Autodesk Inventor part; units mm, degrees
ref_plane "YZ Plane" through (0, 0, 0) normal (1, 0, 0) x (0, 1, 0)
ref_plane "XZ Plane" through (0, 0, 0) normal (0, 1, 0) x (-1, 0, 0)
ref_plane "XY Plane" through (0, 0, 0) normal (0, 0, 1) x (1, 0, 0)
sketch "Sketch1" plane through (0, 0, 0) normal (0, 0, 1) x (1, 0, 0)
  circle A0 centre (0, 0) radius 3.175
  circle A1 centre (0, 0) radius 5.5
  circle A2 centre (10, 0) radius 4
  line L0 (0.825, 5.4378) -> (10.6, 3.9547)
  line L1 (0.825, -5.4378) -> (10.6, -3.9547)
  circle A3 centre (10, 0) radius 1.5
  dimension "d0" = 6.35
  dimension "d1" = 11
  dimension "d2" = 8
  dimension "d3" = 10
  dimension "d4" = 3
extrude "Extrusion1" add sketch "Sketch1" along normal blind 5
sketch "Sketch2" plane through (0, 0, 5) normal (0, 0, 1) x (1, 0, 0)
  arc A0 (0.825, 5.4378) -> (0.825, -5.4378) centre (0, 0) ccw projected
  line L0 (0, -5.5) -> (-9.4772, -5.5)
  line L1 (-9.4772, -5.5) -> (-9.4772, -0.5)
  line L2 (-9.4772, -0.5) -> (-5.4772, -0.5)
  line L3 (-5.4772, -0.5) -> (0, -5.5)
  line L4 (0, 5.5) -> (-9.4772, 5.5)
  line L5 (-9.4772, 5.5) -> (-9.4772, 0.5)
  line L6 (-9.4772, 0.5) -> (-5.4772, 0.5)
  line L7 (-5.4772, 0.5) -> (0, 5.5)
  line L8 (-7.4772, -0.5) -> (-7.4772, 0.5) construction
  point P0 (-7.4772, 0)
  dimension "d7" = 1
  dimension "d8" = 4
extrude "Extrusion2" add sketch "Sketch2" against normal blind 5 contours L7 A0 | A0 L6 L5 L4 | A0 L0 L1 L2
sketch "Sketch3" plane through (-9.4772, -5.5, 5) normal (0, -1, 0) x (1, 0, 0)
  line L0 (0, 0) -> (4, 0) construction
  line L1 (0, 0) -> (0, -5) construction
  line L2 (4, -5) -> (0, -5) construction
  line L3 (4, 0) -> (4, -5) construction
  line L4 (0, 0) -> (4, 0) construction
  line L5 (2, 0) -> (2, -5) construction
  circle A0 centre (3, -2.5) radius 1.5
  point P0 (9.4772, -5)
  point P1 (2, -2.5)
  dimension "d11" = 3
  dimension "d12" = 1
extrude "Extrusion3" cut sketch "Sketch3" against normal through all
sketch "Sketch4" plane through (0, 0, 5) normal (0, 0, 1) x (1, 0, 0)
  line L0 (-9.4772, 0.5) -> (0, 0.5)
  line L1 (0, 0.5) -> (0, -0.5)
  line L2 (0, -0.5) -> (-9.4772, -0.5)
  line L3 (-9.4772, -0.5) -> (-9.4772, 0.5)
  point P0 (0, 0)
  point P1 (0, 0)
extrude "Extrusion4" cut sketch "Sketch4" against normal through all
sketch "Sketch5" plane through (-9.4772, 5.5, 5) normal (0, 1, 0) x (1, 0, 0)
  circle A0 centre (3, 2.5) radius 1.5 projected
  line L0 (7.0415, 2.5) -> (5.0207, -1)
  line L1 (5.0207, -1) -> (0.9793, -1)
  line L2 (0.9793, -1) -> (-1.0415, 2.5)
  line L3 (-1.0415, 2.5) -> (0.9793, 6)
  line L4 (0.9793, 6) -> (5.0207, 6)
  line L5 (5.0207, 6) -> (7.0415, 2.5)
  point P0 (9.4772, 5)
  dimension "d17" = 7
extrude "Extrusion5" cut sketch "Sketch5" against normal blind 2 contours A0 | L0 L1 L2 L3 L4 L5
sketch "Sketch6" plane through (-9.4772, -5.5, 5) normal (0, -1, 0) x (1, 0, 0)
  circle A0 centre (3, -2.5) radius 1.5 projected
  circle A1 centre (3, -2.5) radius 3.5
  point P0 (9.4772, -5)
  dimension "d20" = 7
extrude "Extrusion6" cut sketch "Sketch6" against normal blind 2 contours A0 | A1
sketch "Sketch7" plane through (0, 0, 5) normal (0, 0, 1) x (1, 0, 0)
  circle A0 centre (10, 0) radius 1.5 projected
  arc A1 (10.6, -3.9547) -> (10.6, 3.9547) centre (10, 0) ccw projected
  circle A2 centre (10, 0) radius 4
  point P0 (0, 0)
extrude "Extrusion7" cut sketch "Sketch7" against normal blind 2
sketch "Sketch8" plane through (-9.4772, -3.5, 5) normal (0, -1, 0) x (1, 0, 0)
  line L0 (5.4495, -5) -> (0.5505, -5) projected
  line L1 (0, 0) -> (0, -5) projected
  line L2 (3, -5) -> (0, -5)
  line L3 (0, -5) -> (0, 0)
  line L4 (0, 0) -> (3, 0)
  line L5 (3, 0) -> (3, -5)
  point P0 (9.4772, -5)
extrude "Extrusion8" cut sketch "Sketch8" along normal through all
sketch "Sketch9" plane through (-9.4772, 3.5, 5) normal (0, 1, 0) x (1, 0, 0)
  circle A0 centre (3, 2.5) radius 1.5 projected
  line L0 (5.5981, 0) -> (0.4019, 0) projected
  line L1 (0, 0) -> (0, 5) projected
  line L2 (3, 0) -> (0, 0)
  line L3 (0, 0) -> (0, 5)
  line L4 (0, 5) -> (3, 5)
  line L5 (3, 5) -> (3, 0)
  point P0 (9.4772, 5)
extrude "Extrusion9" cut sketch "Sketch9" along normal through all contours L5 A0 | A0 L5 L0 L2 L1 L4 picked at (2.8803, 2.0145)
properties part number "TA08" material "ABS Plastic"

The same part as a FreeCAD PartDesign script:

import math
import FreeCAD as App
import Part
import Sketcher
from FreeCAD import Vector
Q = App.Units.Quantity

doc = App.newDocument("Part")
body = doc.addObject("PartDesign::Body", "Body")

# Sketch on XY plane
sketch1 = body.newObject("Sketcher::SketchObject", "Sketch")
sketch1.AttachmentSupport = (doc.getObject("XY_Plane"), [""])
sketch1.MapMode = "FlatFace"
sketch1.addGeometry(Part.ArcOfCircle(Part.Circle(Vector(0, 0, 0), Vector(0, 0, 1), 5.5), math.radians(81), math.radians(279)), False)
sketch1.addGeometry(Part.LineSegment(Vector(0.8, -5.4, 0), Vector(10.6, -4, 0)), False)
sketch1.addGeometry(Part.ArcOfCircle(Part.Circle(Vector(10, 0, 0), Vector(0, 0, 1), 4), math.radians(-81), math.radians(81)), False)
sketch1.addGeometry(Part.LineSegment(Vector(10.6, 4, 0), Vector(0.8, 5.4, 0)), False)
sketch1.addGeometry(Part.Circle(Vector(0, 0, 0), Vector(0, 0, 1), 3.2), False)
sketch1.addGeometry(Part.Circle(Vector(10, 0, 0), Vector(0, 0, 1), 1.5), False)
sketch1.addConstraint(Sketcher.Constraint("Tangent", 0, 2, 1, 1))
sketch1.addConstraint(Sketcher.Constraint("Tangent", 1, 2, 2, 1))
sketch1.addConstraint(Sketcher.Constraint("Tangent", 2, 2, 3, 1))
sketch1.addConstraint(Sketcher.Constraint("Tangent", 3, 2, 0, 1))
sketch1.addConstraint(Sketcher.Constraint("Coincident", 0, 3, -1, 1))
sketch1.addConstraint(Sketcher.Constraint("Coincident", 4, 3, -1, 1))
sketch1.addConstraint(Sketcher.Constraint("Coincident", 5, 3, 2, 3))
sketch1.addConstraint(Sketcher.Constraint("PointOnObject", 2, 3, -1))
sketch1.addConstraint(Sketcher.Constraint("Diameter", 5, 3.0))
sketch1.addConstraint(Sketcher.Constraint("Radius", 2, 4.0))
sketch1.addConstraint(Sketcher.Constraint("Radius", 0, 5.5))
sketch1.addConstraint(Sketcher.Constraint("Diameter", 4, 6.35))
sketch1.addConstraint(Sketcher.Constraint("DistanceX", -1, 1, 2, 3, 10.0))
pad1 = body.newObject("PartDesign::Pad", "Pad")
pad1.Profile = sketch1
pad1.Length = 5

# Sketch on XY plane
sketch2 = body.newObject("Sketcher::SketchObject", "Sketch001")
sketch2.AttachmentSupport = (doc.getObject("XY_Plane"), [""])
sketch2.MapMode = "FlatFace"
sketch2.AttachmentOffset = App.Placement(Vector(0, 0, 5), App.Rotation())
sketch2.addGeometry(Part.LineSegment(Vector(-5.5, 0.5, 0), Vector(0, 5.5, 0)), False)
sketch2.addGeometry(Part.LineSegment(Vector(0, 5.5, 0), Vector(-9.5, 5.5, 0)), False)
sketch2.addGeometry(Part.LineSegment(Vector(-9.5, 5.5, 0), Vector(-9.5, 0.5, 0)), False)
sketch2.addGeometry(Part.LineSegment(Vector(-9.5, 0.5, 0), Vector(-5.5, 0.5, 0)), False)
sketch2.addGeometry(Part.ArcOfCircle(Part.Circle(Vector(0, 0, 0), Vector(0, 0, 1), 5.5), math.radians(-175), math.radians(-90)), False)
sketch2.addGeometry(Part.LineSegment(Vector(-5.5, -0.5, 0), Vector(-9.5, -0.5, 0)), False)
sketch2.addGeometry(Part.LineSegment(Vector(-9.5, -0.5, 0), Vector(-9.5, -5.5, 0)), False)
sketch2.addGeometry(Part.LineSegment(Vector(-9.5, -5.5, 0), Vector(0, -5.5, 0)), False)
sketch2.addConstraint(Sketcher.Constraint("Coincident", 0, 2, 1, 1))
sketch2.addConstraint(Sketcher.Constraint("Coincident", 1, 2, 2, 1))
sketch2.addConstraint(Sketcher.Constraint("Coincident", 2, 2, 3, 1))
sketch2.addConstraint(Sketcher.Constraint("Coincident", 3, 2, 0, 1))
sketch2.addConstraint(Sketcher.Constraint("Coincident", 4, 1, 5, 1))
sketch2.addConstraint(Sketcher.Constraint("Coincident", 5, 2, 6, 1))
sketch2.addConstraint(Sketcher.Constraint("Coincident", 6, 2, 7, 1))
sketch2.addConstraint(Sketcher.Constraint("Tangent", 7, 2, 4, 2))
sketch2.addConstraint(Sketcher.Constraint("Horizontal", 1))
sketch2.addConstraint(Sketcher.Constraint("Vertical", 2))
sketch2.addConstraint(Sketcher.Constraint("Horizontal", 3))
sketch2.addConstraint(Sketcher.Constraint("Horizontal", 5))
sketch2.addConstraint(Sketcher.Constraint("Vertical", 6))
sketch2.addConstraint(Sketcher.Constraint("Horizontal", 7))
sketch2.addConstraint(Sketcher.Constraint("Coincident", 4, 3, -1, 1))
sketch2.addConstraint(Sketcher.Constraint("Symmetric", 0, 2, 7, 2, -1, 1))
sketch2.addConstraint(Sketcher.Constraint("Symmetric", 3, 2, 4, 1, -1))
sketch2.addConstraint(Sketcher.Constraint("Vertical", 2, 2, 5, 2))
sketch2.addConstraint(Sketcher.Constraint("DistanceX", 3, 1, 3, 2, 4.0))
sketch2.addConstraint(Sketcher.Constraint("DistanceY", 4, 1, 3, 2, 1.0))
sketch2.addConstraint(Sketcher.Constraint("Radius", 4, 5.5))
pad2 = body.newObject("PartDesign::Pad", "Pad001")
pad2.Profile = sketch2
pad2.Length = 5
pad2.Reversed = True

# Sketch on XZ plane
sketch3 = body.newObject("Sketcher::SketchObject", "Sketch002")
sketch3.AttachmentSupport = (doc.getObject("XZ_Plane"), [""])
sketch3.MapMode = "FlatFace"
sketch3.AttachmentOffset = App.Placement(Vector(0, 0, 5.5), App.Rotation())
sketch3.addGeometry(Part.Circle(Vector(-6.5, 2.5, 0), Vector(0, 0, 1), 1.5), False)
sketch3.addConstraint(Sketcher.Constraint("Diameter", 0, 3.0))
sketch3.addConstraint(Sketcher.Constraint("DistanceY", -1, 1, 0, 3, 2.5))
sketch3.addConstraint(Sketcher.Constraint("DistanceX", 0, 3, -1, 1, 6.4772))
pocket1 = body.newObject("PartDesign::Pocket", "Pocket")
pocket1.Profile = sketch3
pocket1.Type = "ThroughAll"

# Sketch on XY plane
sketch4 = body.newObject("Sketcher::SketchObject", "Sketch003")
sketch4.AttachmentSupport = (doc.getObject("XY_Plane"), [""])
sketch4.MapMode = "FlatFace"
sketch4.AttachmentOffset = App.Placement(Vector(0, 0, 5), App.Rotation())
sketch4.addGeometry(Part.LineSegment(Vector(0, 0.5, 0), Vector(-9.5, 0.5, 0)), False)
sketch4.addGeometry(Part.LineSegment(Vector(-9.5, 0.5, 0), Vector(-9.5, -0.5, 0)), False)
sketch4.addGeometry(Part.LineSegment(Vector(-9.5, -0.5, 0), Vector(0, -0.5, 0)), False)
sketch4.addGeometry(Part.LineSegment(Vector(0, -0.5, 0), Vector(0, 0.5, 0)), False)
sketch4.addConstraint(Sketcher.Constraint("Coincident", 0, 2, 1, 1))
sketch4.addConstraint(Sketcher.Constraint("Coincident", 1, 2, 2, 1))
sketch4.addConstraint(Sketcher.Constraint("Coincident", 2, 2, 3, 1))
sketch4.addConstraint(Sketcher.Constraint("Coincident", 3, 2, 0, 1))
sketch4.addConstraint(Sketcher.Constraint("Horizontal", 0))
sketch4.addConstraint(Sketcher.Constraint("Vertical", 1))
sketch4.addConstraint(Sketcher.Constraint("Horizontal", 2))
sketch4.addConstraint(Sketcher.Constraint("Vertical", 3))
sketch4.addConstraint(Sketcher.Constraint("Symmetric", 2, 2, 3, 2, -1, 1))
sketch4.addConstraint(Sketcher.Constraint("DistanceY", 1, 2, 1, 1, 1.0))
sketch4.addConstraint(Sketcher.Constraint("DistanceX", 0, 2, 0, 1, 9.4772))
pocket2 = body.newObject("PartDesign::Pocket", "Pocket001")
pocket2.Profile = sketch4
pocket2.Type = "ThroughAll"

# Sketch on XZ plane
sketch5 = body.newObject("Sketcher::SketchObject", "Sketch004")
sketch5.AttachmentSupport = (doc.getObject("XZ_Plane"), [""])
sketch5.MapMode = "FlatFace"
sketch5.AttachmentOffset = App.Placement(Vector(0, 0, -5.5), App.Rotation())
sketch5.addGeometry(Part.LineSegment(Vector(-4.5, 6, 0), Vector(-2.4, 2.5, 0)), False)
sketch5.addGeometry(Part.LineSegment(Vector(-2.4, 2.5, 0), Vector(-4.5, -1, 0)), False)
sketch5.addGeometry(Part.LineSegment(Vector(-4.5, -1, 0), Vector(-8.5, -1, 0)), False)
sketch5.addGeometry(Part.LineSegment(Vector(-8.5, -1, 0), Vector(-10.5, 2.5, 0)), False)
sketch5.addGeometry(Part.LineSegment(Vector(-10.5, 2.5, 0), Vector(-8.5, 6, 0)), False)
sketch5.addGeometry(Part.LineSegment(Vector(-8.5, 6, 0), Vector(-4.5, 6, 0)), False)
sketch5.addConstraint(Sketcher.Constraint("Coincident", 0, 2, 1, 1))
sketch5.addConstraint(Sketcher.Constraint("Coincident", 1, 2, 2, 1))
sketch5.addConstraint(Sketcher.Constraint("Coincident", 2, 2, 3, 1))
sketch5.addConstraint(Sketcher.Constraint("Coincident", 3, 2, 4, 1))
sketch5.addConstraint(Sketcher.Constraint("Coincident", 4, 2, 5, 1))
sketch5.addConstraint(Sketcher.Constraint("Coincident", 5, 2, 0, 1))
sketch5.addConstraint(Sketcher.Constraint("Horizontal", 2))
sketch5.addConstraint(Sketcher.Constraint("Horizontal", 5))
sketch5.addConstraint(Sketcher.Constraint("Parallel", 0, 3))
sketch5.addConstraint(Sketcher.Constraint("Parallel", 1, 4))
sketch5.addConstraint(Sketcher.Constraint("Horizontal", 0, 2, 3, 2))
sketch5.addConstraint(Sketcher.Constraint("Vertical", 2, 2, 4, 2))
sketch5.addConstraint(Sketcher.Constraint("Vertical", 1, 2, 5, 2))
sketch5.addConstraint(Sketcher.Constraint("DistanceY", 2, 2, 4, 2, 7.0))
sketch5.addConstraint(Sketcher.Constraint("Angle", 0, Q("-59.999 deg")))
sketch5.addConstraint(Sketcher.Constraint("DistanceY", 1, 2, -1, 1, 1.0))
sketch5.addConstraint(Sketcher.Constraint("DistanceX", 2, 2, 2, 1, 4.0414))
sketch5.addConstraint(Sketcher.Constraint("DistanceX", 2, 2, -1, 1, 8.498))
pocket3 = body.newObject("PartDesign::Pocket", "Pocket002")
pocket3.Profile = sketch5
pocket3.Length = 2
pocket3.Reversed = True

# Sketch on XZ plane
sketch6 = body.newObject("Sketcher::SketchObject", "Sketch005")
sketch6.AttachmentSupport = (doc.getObject("XZ_Plane"), [""])
sketch6.MapMode = "FlatFace"
sketch6.AttachmentOffset = App.Placement(Vector(0, 0, 5.5), App.Rotation())
sketch6.addGeometry(Part.Circle(Vector(-6.5, 2.5, 0), Vector(0, 0, 1), 3.5), False)
sketch6.addConstraint(Sketcher.Constraint("Diameter", 0, 7.0))
sketch6.addConstraint(Sketcher.Constraint("DistanceY", -1, 1, 0, 3, 2.5))
sketch6.addConstraint(Sketcher.Constraint("DistanceX", 0, 3, -1, 1, 6.4772))
pocket4 = body.newObject("PartDesign::Pocket", "Pocket003")
pocket4.Profile = sketch6
pocket4.Length = 2

# Sketch on XY plane
sketch7 = body.newObject("Sketcher::SketchObject", "Sketch006")
sketch7.AttachmentSupport = (doc.getObject("XY_Plane"), [""])
sketch7.MapMode = "FlatFace"
sketch7.AttachmentOffset = App.Placement(Vector(0, 0, 5), App.Rotation())
sketch7.addGeometry(Part.Circle(Vector(10, 0, 0), Vector(0, 0, 1), 4), False)
sketch7.addGeometry(Part.Circle(Vector(10, 0, 0), Vector(0, 0, 1), 1.5), False)
sketch7.addConstraint(Sketcher.Constraint("Coincident", 1, 3, 0, 3))
sketch7.addConstraint(Sketcher.Constraint("PointOnObject", 0, 3, -1))
sketch7.addConstraint(Sketcher.Constraint("Diameter", 0, 8.0))
sketch7.addConstraint(Sketcher.Constraint("Diameter", 1, 3.0))
sketch7.addConstraint(Sketcher.Constraint("DistanceX", -1, 1, 0, 3, 10.0))
pocket5 = body.newObject("PartDesign::Pocket", "Pocket004")
pocket5.Profile = sketch7
pocket5.Length = 2

# Sketch on XZ plane
sketch8 = body.newObject("Sketcher::SketchObject", "Sketch007")
sketch8.AttachmentSupport = (doc.getObject("XZ_Plane"), [""])
sketch8.MapMode = "FlatFace"
sketch8.AttachmentOffset = App.Placement(Vector(0, 0, 3.5), App.Rotation())
sketch8.addGeometry(Part.LineSegment(Vector(-9.5, 0, 0), Vector(-6.5, 0, 0)), False)
sketch8.addGeometry(Part.LineSegment(Vector(-6.5, 0, 0), Vector(-6.5, 5, 0)), False)
sketch8.addGeometry(Part.LineSegment(Vector(-6.5, 5, 0), Vector(-9.5, 5, 0)), False)
sketch8.addGeometry(Part.LineSegment(Vector(-9.5, 5, 0), Vector(-9.5, 0, 0)), False)
sketch8.addConstraint(Sketcher.Constraint("Coincident", 0, 2, 1, 1))
sketch8.addConstraint(Sketcher.Constraint("Coincident", 1, 2, 2, 1))
sketch8.addConstraint(Sketcher.Constraint("Coincident", 2, 2, 3, 1))
sketch8.addConstraint(Sketcher.Constraint("Coincident", 3, 2, 0, 1))
sketch8.addConstraint(Sketcher.Constraint("Horizontal", 0))
sketch8.addConstraint(Sketcher.Constraint("Vertical", 1))
sketch8.addConstraint(Sketcher.Constraint("Horizontal", 2))
sketch8.addConstraint(Sketcher.Constraint("Vertical", 3))
sketch8.addConstraint(Sketcher.Constraint("PointOnObject", 0, 2, -1))
sketch8.addConstraint(Sketcher.Constraint("DistanceX", 0, 1, 0, 2, 3.0))
sketch8.addConstraint(Sketcher.Constraint("DistanceY", 1, 1, 1, 2, 5.0))
sketch8.addConstraint(Sketcher.Constraint("DistanceX", 0, 2, -1, 1, 6.4772))
pocket6 = body.newObject("PartDesign::Pocket", "Pocket005")
pocket6.Profile = sketch8
pocket6.Type = "ThroughAll"
pocket6.Reversed = True

# Sketch on XZ plane
sketch9 = body.newObject("Sketcher::SketchObject", "Sketch008")
sketch9.AttachmentSupport = (doc.getObject("XZ_Plane"), [""])
sketch9.MapMode = "FlatFace"
sketch9.AttachmentOffset = App.Placement(Vector(0, 0, -3.5), App.Rotation())
sketch9.addGeometry(Part.LineSegment(Vector(-6.5, 0, 0), Vector(-9.5, 0, 0)), False)
sketch9.addGeometry(Part.LineSegment(Vector(-9.5, 0, 0), Vector(-9.5, 5, 0)), False)
sketch9.addGeometry(Part.LineSegment(Vector(-9.5, 5, 0), Vector(-6.5, 5, 0)), False)
sketch9.addGeometry(Part.LineSegment(Vector(-6.5, 5, 0), Vector(-6.5, 0, 0)), False)
sketch9.addConstraint(Sketcher.Constraint("Coincident", 0, 2, 1, 1))
sketch9.addConstraint(Sketcher.Constraint("Coincident", 1, 2, 2, 1))
sketch9.addConstraint(Sketcher.Constraint("Coincident", 2, 2, 3, 1))
sketch9.addConstraint(Sketcher.Constraint("Coincident", 3, 2, 0, 1))
sketch9.addConstraint(Sketcher.Constraint("Horizontal", 0))
sketch9.addConstraint(Sketcher.Constraint("Vertical", 1))
sketch9.addConstraint(Sketcher.Constraint("Horizontal", 2))
sketch9.addConstraint(Sketcher.Constraint("Vertical", 3))
sketch9.addConstraint(Sketcher.Constraint("PointOnObject", 0, 2, -1))
sketch9.addConstraint(Sketcher.Constraint("DistanceX", 0, 2, 0, 1, 3.0))
sketch9.addConstraint(Sketcher.Constraint("DistanceY", 1, 1, 1, 2, 5.0))
sketch9.addConstraint(Sketcher.Constraint("DistanceX", 0, 2, -1, 1, 9.4772))
pocket7 = body.newObject("PartDesign::Pocket", "Pocket006")
pocket7.Profile = sketch9
pocket7.Type = "ThroughAll"

doc.recompute()
